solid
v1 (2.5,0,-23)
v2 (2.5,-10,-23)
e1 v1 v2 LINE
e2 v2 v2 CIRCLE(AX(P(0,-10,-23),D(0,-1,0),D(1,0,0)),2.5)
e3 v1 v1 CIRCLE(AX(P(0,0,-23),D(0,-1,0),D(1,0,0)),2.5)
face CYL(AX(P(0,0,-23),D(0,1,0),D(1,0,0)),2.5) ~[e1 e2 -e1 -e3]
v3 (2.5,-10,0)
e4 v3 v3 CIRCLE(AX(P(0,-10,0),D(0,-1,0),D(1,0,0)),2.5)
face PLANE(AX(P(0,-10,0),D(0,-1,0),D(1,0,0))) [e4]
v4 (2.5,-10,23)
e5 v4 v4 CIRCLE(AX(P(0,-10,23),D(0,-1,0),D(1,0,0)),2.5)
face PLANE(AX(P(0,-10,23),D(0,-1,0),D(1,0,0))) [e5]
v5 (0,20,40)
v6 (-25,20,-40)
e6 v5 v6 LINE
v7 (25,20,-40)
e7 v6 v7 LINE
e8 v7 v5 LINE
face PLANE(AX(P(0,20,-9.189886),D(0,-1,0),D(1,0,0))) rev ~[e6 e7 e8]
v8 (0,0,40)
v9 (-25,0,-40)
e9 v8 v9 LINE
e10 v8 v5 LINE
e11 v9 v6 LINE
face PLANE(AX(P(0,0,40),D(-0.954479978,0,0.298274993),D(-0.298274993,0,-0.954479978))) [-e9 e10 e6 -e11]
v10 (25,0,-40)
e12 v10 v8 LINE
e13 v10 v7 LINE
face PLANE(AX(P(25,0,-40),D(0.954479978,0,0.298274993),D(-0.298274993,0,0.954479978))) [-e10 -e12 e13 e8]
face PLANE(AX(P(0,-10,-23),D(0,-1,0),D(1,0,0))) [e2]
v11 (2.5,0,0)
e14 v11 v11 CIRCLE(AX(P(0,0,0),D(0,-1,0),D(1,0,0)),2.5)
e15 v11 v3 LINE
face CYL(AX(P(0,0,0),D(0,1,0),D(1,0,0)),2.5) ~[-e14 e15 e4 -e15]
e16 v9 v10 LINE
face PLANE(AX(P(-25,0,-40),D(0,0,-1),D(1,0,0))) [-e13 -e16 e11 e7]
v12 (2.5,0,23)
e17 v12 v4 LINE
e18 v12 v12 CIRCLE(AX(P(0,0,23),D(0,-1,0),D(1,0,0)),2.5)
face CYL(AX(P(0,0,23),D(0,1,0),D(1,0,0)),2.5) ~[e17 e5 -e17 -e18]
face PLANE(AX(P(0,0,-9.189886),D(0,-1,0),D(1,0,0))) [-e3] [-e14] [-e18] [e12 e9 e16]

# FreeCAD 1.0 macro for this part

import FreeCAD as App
import Part
import Sketcher


def add_polygon(sketch, points):
    """Adds a closed chain of lines whose ends are joined by coincident constraints."""
    first, n = sketch.GeometryCount, len(points)
    for a, b in zip(points, points[1:] + points[:1]):
        sketch.addGeometry(Part.LineSegment(App.Vector(*a, 0), App.Vector(*b, 0)), False)
    for i in range(n):
        sketch.addConstraint(Sketcher.Constraint("Coincident", first + i, 2, first + (i + 1) % n, 1))

doc = App.newDocument("Part")
body = doc.addObject("PartDesign::Body", "Body")

sketch1 = doc.addObject("Sketcher::SketchObject", "Sketch")
body.addObject(sketch1)
sketch1.AttachmentSupport = (doc.XZ_Plane, [""])
sketch1.MapMode = "FlatFace"
add_polygon(sketch1, [(25, -40), (0, 40), (-25, -40)])
sketch1.addConstraint(Sketcher.Constraint("Horizontal", 2))
sketch1.addConstraint(Sketcher.Constraint("PointOnObject", 0, 2, -2))
sketch1.addConstraint(Sketcher.Constraint("Equal", 0, 1))
sketch1.addConstraint(Sketcher.Constraint("DistanceX", 2, 1, 2, 2, 50.0))
sketch1.addConstraint(Sketcher.Constraint("DistanceY", -1, 1, 0, 2, 40.0))
sketch1.addConstraint(Sketcher.Constraint("DistanceY", 1, 2, -1, 1, 40.0))
pad1 = doc.addObject("PartDesign::Pad", "Pad")
body.addObject(pad1)
pad1.Profile = sketch1
pad1.Length = 20
pad1.Reversed = True

sketch2 = doc.addObject("Sketcher::SketchObject", "Sketch001")
body.addObject(sketch2)
sketch2.AttachmentSupport = (doc.XZ_Plane, [""])
sketch2.MapMode = "FlatFace"
sketch2.addGeometry(Part.Circle(App.Vector(0, 23, 0), App.Vector(0, 0, 1), 2.5), False)
sketch2.addGeometry(Part.Circle(App.Vector(0, 0, 0), App.Vector(0, 0, 1), 2.5), False)
sketch2.addGeometry(Part.Circle(App.Vector(0, -23, 0), App.Vector(0, 0, 1), 2.5), False)
sketch2.addConstraint(Sketcher.Constraint("Coincident", 1, 3, -1, 1))
sketch2.addConstraint(Sketcher.Constraint("Equal", 0, 1))
sketch2.addConstraint(Sketcher.Constraint("Equal", 1, 2))
sketch2.addConstraint(Sketcher.Constraint("Symmetric", 0, 3, 2, 3, -1, 1))
sketch2.addConstraint(Sketcher.Constraint("PointOnObject", 0, 3, -2))
sketch2.addConstraint(Sketcher.Constraint("Diameter", 0, 5.0))
sketch2.addConstraint(Sketcher.Constraint("DistanceY", -1, 1, 0, 3, 23.0))
pad2 = doc.addObject("PartDesign::Pad", "Pad001")
body.addObject(pad2)
pad2.Profile = sketch2
pad2.Length = 10

doc.recompute()
